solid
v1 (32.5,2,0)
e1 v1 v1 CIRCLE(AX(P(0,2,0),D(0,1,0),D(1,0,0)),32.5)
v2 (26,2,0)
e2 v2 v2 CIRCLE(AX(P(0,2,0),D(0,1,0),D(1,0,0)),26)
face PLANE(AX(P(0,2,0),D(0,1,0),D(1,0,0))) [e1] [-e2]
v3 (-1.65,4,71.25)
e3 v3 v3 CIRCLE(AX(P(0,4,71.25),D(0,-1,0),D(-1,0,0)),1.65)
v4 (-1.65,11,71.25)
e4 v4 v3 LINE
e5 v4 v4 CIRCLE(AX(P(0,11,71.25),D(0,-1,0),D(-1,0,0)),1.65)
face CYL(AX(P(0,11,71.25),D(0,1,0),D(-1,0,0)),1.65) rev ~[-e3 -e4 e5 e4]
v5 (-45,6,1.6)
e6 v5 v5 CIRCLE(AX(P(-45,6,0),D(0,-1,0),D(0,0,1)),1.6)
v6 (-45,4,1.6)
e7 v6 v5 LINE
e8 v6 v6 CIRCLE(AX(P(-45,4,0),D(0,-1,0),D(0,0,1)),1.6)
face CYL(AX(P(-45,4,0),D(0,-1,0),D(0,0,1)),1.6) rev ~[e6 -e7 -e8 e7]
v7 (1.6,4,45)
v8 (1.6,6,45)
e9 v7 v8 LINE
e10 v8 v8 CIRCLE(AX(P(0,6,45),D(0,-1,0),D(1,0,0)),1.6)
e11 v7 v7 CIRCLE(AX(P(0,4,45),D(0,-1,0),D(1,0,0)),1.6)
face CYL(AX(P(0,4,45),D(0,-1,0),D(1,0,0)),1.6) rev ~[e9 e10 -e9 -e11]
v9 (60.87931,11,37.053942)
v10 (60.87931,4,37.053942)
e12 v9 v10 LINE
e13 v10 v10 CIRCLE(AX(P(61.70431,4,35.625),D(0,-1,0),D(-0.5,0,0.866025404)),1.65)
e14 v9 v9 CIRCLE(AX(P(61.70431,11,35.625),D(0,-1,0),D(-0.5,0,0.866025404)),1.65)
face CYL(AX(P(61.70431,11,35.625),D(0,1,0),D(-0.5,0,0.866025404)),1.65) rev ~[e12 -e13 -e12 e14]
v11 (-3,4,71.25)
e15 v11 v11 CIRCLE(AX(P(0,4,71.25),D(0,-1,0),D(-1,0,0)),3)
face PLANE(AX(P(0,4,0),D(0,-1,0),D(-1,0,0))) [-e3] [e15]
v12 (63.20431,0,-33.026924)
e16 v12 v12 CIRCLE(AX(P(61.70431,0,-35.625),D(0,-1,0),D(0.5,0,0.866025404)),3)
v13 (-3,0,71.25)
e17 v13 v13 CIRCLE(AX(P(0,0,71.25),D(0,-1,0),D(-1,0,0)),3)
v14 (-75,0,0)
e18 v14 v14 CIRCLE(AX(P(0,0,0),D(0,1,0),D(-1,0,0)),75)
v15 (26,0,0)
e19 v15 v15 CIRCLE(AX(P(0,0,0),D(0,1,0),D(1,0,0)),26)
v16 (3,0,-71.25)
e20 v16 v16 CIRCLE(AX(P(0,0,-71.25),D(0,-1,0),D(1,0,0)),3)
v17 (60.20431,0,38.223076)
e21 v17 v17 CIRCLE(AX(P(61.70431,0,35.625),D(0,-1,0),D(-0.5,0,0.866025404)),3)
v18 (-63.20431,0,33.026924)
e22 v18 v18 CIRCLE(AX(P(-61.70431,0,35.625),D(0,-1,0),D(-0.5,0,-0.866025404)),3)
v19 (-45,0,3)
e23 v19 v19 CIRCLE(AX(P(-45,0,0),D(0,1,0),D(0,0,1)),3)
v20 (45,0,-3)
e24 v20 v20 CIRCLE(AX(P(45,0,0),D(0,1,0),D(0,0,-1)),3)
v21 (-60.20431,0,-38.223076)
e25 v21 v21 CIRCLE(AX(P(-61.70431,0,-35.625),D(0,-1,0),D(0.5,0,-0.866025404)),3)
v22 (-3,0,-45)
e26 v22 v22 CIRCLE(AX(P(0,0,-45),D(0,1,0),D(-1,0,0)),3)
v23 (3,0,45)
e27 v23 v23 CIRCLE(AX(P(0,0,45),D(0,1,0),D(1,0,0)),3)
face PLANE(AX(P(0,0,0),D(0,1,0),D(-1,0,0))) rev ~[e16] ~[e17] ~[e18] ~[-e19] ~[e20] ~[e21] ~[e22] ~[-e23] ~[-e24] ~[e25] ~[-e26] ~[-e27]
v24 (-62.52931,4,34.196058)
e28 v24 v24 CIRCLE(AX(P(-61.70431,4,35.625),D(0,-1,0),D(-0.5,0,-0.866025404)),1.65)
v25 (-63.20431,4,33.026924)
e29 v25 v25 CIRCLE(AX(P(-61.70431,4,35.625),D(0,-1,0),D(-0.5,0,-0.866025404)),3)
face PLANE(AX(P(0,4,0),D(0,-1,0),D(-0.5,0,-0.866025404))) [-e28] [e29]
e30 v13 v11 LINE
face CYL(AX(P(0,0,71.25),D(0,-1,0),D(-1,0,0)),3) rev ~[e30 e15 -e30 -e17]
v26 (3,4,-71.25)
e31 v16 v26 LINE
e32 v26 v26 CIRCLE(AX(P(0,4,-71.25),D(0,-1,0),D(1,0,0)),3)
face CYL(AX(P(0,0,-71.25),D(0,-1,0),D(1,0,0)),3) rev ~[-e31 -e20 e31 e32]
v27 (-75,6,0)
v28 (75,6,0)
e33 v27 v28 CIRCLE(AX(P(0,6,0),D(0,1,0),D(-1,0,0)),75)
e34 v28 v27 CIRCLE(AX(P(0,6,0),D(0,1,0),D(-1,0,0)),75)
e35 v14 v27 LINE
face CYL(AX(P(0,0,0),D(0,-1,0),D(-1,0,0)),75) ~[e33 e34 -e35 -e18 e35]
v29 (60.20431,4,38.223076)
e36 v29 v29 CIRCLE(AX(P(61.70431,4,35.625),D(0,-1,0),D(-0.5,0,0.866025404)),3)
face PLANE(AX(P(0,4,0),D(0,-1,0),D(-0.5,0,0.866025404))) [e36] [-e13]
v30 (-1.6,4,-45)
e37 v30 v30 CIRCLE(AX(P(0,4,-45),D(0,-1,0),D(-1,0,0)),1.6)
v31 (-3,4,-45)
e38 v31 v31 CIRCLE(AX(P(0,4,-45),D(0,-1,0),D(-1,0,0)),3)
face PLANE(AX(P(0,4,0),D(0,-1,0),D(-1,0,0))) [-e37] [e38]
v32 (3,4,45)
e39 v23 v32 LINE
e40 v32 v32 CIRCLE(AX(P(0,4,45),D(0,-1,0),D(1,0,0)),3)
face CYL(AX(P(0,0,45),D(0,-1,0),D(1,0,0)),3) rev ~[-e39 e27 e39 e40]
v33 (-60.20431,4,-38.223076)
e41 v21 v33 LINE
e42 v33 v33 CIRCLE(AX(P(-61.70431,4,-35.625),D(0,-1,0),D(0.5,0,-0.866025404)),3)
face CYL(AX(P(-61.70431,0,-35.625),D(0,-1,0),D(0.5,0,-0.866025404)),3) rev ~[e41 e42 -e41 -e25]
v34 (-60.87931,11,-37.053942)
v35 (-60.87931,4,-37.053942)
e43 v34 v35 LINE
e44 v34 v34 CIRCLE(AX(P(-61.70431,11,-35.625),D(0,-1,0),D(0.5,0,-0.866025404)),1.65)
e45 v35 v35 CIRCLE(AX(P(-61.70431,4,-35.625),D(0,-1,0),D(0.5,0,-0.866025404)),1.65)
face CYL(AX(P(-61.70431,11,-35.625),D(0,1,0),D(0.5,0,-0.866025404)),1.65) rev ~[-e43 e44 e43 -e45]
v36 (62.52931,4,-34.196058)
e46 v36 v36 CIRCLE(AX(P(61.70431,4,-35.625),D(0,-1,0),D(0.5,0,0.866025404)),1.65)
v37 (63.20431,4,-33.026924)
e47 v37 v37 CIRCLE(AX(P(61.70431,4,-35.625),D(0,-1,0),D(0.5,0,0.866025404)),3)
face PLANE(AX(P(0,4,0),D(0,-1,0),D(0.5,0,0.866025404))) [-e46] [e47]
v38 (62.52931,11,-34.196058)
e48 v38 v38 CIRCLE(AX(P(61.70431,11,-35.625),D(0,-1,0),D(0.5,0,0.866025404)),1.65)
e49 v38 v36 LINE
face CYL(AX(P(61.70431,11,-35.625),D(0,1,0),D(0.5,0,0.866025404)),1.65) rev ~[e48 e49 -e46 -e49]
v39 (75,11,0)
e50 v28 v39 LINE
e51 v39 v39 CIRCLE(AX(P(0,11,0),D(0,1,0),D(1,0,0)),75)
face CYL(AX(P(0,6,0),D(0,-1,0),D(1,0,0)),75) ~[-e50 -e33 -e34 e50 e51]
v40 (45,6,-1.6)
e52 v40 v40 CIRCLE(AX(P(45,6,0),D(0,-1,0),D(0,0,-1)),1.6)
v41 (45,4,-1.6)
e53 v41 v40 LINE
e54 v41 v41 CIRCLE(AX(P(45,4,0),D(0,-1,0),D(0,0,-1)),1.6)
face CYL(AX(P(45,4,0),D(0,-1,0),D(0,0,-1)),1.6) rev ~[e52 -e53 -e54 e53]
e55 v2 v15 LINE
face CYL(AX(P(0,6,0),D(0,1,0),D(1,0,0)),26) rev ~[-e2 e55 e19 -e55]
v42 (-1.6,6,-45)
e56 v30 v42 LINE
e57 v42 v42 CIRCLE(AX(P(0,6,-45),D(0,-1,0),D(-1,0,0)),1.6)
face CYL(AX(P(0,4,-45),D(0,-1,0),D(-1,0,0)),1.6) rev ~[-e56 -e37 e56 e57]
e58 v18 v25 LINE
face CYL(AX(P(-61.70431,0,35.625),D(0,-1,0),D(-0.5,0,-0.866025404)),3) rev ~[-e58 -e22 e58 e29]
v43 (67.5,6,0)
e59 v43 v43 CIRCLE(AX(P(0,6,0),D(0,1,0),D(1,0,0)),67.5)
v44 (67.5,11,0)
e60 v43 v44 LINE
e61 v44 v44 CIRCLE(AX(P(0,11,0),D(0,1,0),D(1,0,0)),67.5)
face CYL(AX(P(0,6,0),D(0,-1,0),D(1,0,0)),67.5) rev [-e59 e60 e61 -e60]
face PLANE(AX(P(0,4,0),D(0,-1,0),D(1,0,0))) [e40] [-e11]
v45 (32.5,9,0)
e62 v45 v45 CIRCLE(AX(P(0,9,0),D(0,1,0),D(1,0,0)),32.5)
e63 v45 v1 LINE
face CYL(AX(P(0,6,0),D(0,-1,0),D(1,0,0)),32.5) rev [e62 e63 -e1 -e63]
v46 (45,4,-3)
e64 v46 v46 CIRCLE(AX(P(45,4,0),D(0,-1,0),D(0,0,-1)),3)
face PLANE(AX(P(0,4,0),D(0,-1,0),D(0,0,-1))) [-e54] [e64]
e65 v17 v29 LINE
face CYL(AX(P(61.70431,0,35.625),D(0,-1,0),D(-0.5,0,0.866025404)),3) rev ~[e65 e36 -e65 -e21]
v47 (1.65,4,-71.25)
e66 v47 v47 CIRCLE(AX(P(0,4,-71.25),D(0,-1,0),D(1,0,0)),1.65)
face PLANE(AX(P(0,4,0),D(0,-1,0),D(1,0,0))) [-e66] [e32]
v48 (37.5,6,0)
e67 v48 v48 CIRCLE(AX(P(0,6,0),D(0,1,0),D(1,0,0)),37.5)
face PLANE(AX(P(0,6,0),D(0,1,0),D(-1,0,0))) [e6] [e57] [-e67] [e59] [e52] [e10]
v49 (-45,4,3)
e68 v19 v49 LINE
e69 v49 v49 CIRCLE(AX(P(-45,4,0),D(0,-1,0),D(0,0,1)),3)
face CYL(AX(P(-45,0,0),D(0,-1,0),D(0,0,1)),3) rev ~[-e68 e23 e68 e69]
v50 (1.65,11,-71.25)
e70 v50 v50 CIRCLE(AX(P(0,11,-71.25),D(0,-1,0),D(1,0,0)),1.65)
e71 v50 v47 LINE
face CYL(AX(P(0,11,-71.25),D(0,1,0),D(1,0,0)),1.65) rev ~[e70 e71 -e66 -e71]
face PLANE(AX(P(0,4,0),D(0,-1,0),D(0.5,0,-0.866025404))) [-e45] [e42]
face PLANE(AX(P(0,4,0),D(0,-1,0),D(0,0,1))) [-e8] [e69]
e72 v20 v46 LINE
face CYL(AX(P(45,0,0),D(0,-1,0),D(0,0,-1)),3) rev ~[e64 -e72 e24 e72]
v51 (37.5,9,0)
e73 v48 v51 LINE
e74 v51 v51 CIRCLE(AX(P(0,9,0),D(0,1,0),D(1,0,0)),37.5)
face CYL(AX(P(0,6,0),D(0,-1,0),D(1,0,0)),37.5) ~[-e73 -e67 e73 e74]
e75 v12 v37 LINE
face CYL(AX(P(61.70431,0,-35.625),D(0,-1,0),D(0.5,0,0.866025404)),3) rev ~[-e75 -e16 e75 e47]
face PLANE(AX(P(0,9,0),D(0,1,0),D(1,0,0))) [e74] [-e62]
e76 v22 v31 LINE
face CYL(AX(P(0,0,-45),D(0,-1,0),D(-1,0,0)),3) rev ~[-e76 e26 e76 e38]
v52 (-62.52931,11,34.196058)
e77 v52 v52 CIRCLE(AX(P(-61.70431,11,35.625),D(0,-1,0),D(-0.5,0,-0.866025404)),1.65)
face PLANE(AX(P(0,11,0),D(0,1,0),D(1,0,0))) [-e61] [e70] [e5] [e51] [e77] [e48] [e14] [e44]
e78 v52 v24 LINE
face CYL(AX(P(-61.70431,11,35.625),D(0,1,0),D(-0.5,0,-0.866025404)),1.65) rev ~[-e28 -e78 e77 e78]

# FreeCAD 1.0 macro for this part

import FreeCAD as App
import Part
import Sketcher
Q = App.Units.Quantity

doc = App.newDocument("Part")
body = doc.addObject("PartDesign::Body", "Body")

# Sketch on XZ plane
sketch1 = body.newObject("Sketcher::SketchObject", "Sketch")
sketch1.AttachmentSupport = (doc.getObject("XZ_Plane"), [""])
sketch1.MapMode = "FlatFace"
sketch1.addGeometry(Part.Circle(App.Vector(0, 0, 0), App.Vector(0, 0, 1), 75), False)
sketch1.addConstraint([
    Sketcher.Constraint("Coincident", 0, 3, -1, 1),
    Sketcher.Constraint("Diameter", 0, Q("150 mm")),
])
pad1 = body.newObject("PartDesign::Pad", "Pad")
pad1.Profile = sketch1
pad1.Length = 6
pad1.Reversed = True

# Sketch on XZ plane
sketch2 = body.newObject("Sketcher::SketchObject", "Sketch001")
sketch2.AttachmentSupport = (doc.getObject("XZ_Plane"), [""])
sketch2.MapMode = "FlatFace"
sketch2.AttachmentOffset = App.Placement(App.Vector(0, 0, -6), App.Rotation())
sketch2.addGeometry(Part.Circle(App.Vector(0, 0, 0), App.Vector(0, 0, 1), 26), False)
sketch2.addConstraint([
    Sketcher.Constraint("Coincident", 0, 3, -1, 1),
    Sketcher.Constraint("Diameter", 0, Q("52 mm")),
])
pocket1 = body.newObject("PartDesign::Pocket", "Pocket")
pocket1.Profile = sketch2
pocket1.Type = "ThroughAll"
pocket1.Reversed = True

# Sketch on XZ plane
sketch3 = body.newObject("Sketcher::SketchObject", "Sketch002")
sketch3.AttachmentSupport = (doc.getObject("XZ_Plane"), [""])
sketch3.MapMode = "FlatFace"
sketch3.addGeometry(Part.Circle(App.Vector(0, 45, 0), App.Vector(0, 0, 1), 3), False)
sketch3.addConstraint([
    Sketcher.Constraint("PointOnObject", 0, 3, -2),
    Sketcher.Constraint("Diameter", 0, Q("6 mm")),
    Sketcher.Constraint("DistanceY", -1, 1, 0, 3, Q("45 mm")),
])
pocket2 = body.newObject("PartDesign::Pocket", "Pocket001")
pocket2.Profile = sketch3
pocket2.Length = 4

# Sketch on XZ plane
sketch4 = body.newObject("Sketcher::SketchObject", "Sketch003")
sketch4.AttachmentSupport = (doc.getObject("XZ_Plane"), [""])
sketch4.MapMode = "FlatFace"
sketch4.AttachmentOffset = App.Placement(App.Vector(0, 0, -4), App.Rotation())
sketch4.addGeometry(Part.Circle(App.Vector(0, 45, 0), App.Vector(0, 0, 1), 1.6), False)
sketch4.addConstraint([
    Sketcher.Constraint("PointOnObject", 0, 3, -2),
    Sketcher.Constraint("Diameter", 0, Q("3.2 mm")),
    Sketcher.Constraint("DistanceY", -1, 1, 0, 3, Q("45 mm")),
])
pocket3 = body.newObject("PartDesign::Pocket", "Pocket002")
pocket3.Profile = sketch4
pocket3.Type = "ThroughAll"
doc.recompute()

polarpattern = body.newObject("PartDesign::PolarPattern", "PolarPattern")
polarpattern.Originals = [pocket2, pocket3]
polarpattern.Axis = (doc.getObject("Y_Axis"), [""])
polarpattern.Angle = 360
polarpattern.Occurrences = 4
body.Tip = polarpattern

# Sketch on XZ plane
sketch5 = body.newObject("Sketcher::SketchObject", "Sketch004")
sketch5.AttachmentSupport = (doc.getObject("XZ_Plane"), [""])
sketch5.MapMode = "FlatFace"
sketch5.AttachmentOffset = App.Placement(App.Vector(0, 0, -6), App.Rotation())
sketch5.addGeometry([
    Part.Circle(App.Vector(0, 0, 0), App.Vector(0, 0, 1), 32.5),
    Part.Circle(App.Vector(0, 0, 0), App.Vector(0, 0, 1), 26),
], False)
sketch5.addConstraint([
    Sketcher.Constraint("Coincident", 0, 3, -1, 1),
    Sketcher.Constraint("Coincident", 1, 3, -1, 1),
    Sketcher.Constraint("Diameter", 0, Q("65 mm")),
    Sketcher.Constraint("Diameter", 1, Q("52 mm")),
])
pocket4 = body.newObject("PartDesign::Pocket", "Pocket003")
pocket4.Profile = sketch5
pocket4.Length = 4
pocket4.Reversed = True

# Sketch on XZ plane
sketch6 = body.newObject("Sketcher::SketchObject", "Sketch005")
sketch6.AttachmentSupport = (doc.getObject("XZ_Plane"), [""])
sketch6.MapMode = "FlatFace"
sketch6.AttachmentOffset = App.Placement(App.Vector(0, 0, -6), App.Rotation())
sketch6.addGeometry([
    Part.Circle(App.Vector(0, 0, 0), App.Vector(0, 0, 1), 37.5),
    Part.Circle(App.Vector(0, 0, 0), App.Vector(0, 0, 1), 32.5),
], False)
sketch6.addConstraint([
    Sketcher.Constraint("Coincident", 0, 3, -1, 1),
    Sketcher.Constraint("Coincident", 1, 3, -1, 1),
    Sketcher.Constraint("Diameter", 0, Q("75 mm")),
    Sketcher.Constraint("Diameter", 1, Q("65 mm")),
])
pad2 = body.newObject("PartDesign::Pad", "Pad001")
pad2.Profile = sketch6
pad2.Length = 3
pad2.Reversed = True

# Sketch on XZ plane
sketch7 = body.newObject("Sketcher::SketchObject", "Sketch006")
sketch7.AttachmentSupport = (doc.getObject("XZ_Plane"), [""])
sketch7.MapMode = "FlatFace"
sketch7.AttachmentOffset = App.Placement(App.Vector(0, 0, -6), App.Rotation())
sketch7.addGeometry([
    Part.Circle(App.Vector(0, 0, 0), App.Vector(0, 0, 1), 75),
    Part.Circle(App.Vector(0, 0, 0), App.Vector(0, 0, 1), 67.5),
], False)
sketch7.addConstraint([
    Sketcher.Constraint("Coincident", 0, 3, -1, 1),
    Sketcher.Constraint("Coincident", 1, 3, -1, 1),
    Sketcher.Constraint("Diameter", 0, Q("150 mm")),
    Sketcher.Constraint("Diameter", 1, Q("135 mm")),
])
pad3 = body.newObject("PartDesign::Pad", "Pad002")
pad3.Profile = sketch7
pad3.Length = 5
pad3.Reversed = True

# Sketch on XZ plane
sketch8 = body.newObject("Sketcher::SketchObject", "Sketch007")
sketch8.AttachmentSupport = (doc.getObject("XZ_Plane"), [""])
sketch8.MapMode = "FlatFace"
sketch8.AttachmentOffset = App.Placement(App.Vector(0, 0, -11), App.Rotation())
sketch8.addGeometry(Part.Circle(App.Vector(0, -71.25, 0), App.Vector(0, 0, 1), 1.65), False)
sketch8.addConstraint([
    Sketcher.Constraint("PointOnObject", 0, 3, -2),
    Sketcher.Constraint("Diameter", 0, Q("3.3 mm")),
    Sketcher.Constraint("DistanceY", 0, 3, -1, 1, Q("71.25 mm")),
])
pocket5 = body.newObject("PartDesign::Pocket", "Pocket004")
pocket5.Profile = sketch8
pocket5.Type = "ThroughAll"
pocket5.Reversed = True
doc.recompute()

polarpattern2 = body.newObject("PartDesign::PolarPattern", "PolarPattern001")
polarpattern2.Originals = [pocket5]
polarpattern2.Axis = (doc.getObject("Y_Axis"), [""])
polarpattern2.Angle = 360
polarpattern2.Occurrences = 6
body.Tip = polarpattern2

# Sketch on XZ plane
sketch9 = body.newObject("Sketcher::SketchObject", "Sketch008")
sketch9.AttachmentSupport = (doc.getObject("XZ_Plane"), [""])
sketch9.MapMode = "FlatFace"
sketch9.addGeometry([
    Part.Circle(App.Vector(0, -71.25, 0), App.Vector(0, 0, 1), 3),
    Part.Circle(App.Vector(0, -71.25, 0), App.Vector(0, 0, 1), 1.65),
], False)
sketch9.addConstraint([
    Sketcher.Constraint("Coincident", 1, 3, 0, 3),
    Sketcher.Constraint("PointOnObject", 0, 3, -2),
    Sketcher.Constraint("Diameter", 0, Q("6 mm")),
    Sketcher.Constraint("Diameter", 1, Q("3.3 mm")),
    Sketcher.Constraint("DistanceY", 0, 3, -1, 1, Q("71.25 mm")),
])
pocket6 = body.newObject("PartDesign::Pocket", "Pocket005")
pocket6.Profile = sketch9
pocket6.Length = 4
doc.recompute()

polarpattern3 = body.newObject("PartDesign::PolarPattern", "PolarPattern002")
polarpattern3.Originals = [pocket6]
polarpattern3.Axis = (doc.getObject("Y_Axis"), [""])
polarpattern3.Angle = 360
polarpattern3.Occurrences = 6
body.Tip = polarpattern3

doc.recompute()
